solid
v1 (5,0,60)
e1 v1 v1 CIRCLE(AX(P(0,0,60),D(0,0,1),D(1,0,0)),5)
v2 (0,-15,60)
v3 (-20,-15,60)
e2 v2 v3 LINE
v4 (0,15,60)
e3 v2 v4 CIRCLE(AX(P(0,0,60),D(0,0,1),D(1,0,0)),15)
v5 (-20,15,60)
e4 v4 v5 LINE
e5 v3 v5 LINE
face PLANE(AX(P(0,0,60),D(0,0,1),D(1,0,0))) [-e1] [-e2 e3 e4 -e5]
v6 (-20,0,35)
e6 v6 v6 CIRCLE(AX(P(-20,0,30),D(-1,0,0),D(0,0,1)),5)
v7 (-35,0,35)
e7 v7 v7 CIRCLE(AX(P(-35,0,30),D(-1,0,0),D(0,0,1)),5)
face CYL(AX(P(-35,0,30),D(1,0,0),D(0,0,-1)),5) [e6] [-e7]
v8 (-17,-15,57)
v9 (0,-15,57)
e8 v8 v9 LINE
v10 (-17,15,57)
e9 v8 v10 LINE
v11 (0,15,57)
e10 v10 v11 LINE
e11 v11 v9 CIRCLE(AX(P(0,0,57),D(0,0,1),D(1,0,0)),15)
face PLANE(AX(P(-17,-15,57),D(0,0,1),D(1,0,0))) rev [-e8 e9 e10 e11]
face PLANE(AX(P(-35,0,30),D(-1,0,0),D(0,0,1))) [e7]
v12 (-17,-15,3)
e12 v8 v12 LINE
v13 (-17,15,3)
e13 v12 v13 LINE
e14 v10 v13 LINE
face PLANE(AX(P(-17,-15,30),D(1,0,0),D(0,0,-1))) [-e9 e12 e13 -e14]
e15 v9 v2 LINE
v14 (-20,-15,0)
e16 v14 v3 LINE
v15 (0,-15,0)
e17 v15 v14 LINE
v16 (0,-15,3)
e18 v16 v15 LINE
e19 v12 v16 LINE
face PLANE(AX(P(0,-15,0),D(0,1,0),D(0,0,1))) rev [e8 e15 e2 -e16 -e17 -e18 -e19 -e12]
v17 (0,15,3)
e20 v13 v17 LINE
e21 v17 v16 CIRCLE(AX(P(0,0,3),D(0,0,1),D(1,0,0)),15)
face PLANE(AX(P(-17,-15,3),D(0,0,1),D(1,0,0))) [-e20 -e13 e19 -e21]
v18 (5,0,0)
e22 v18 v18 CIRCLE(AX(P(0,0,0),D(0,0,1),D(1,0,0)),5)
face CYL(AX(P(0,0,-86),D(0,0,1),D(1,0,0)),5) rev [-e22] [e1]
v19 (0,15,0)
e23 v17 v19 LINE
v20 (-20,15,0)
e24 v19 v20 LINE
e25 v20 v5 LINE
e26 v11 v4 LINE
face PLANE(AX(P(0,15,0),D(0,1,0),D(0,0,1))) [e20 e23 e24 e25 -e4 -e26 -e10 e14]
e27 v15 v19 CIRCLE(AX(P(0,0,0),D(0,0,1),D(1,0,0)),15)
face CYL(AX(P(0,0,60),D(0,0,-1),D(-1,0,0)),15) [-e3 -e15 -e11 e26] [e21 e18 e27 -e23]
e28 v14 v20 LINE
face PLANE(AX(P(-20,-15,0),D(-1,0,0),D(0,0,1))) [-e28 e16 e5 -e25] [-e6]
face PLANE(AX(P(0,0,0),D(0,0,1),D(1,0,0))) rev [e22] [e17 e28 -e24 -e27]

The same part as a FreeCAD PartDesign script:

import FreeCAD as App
import Part
import Sketcher
from FreeCAD import Vector

doc = App.newDocument("Part")
body = doc.addObject("PartDesign::Body", "Body")

sketch1 = body.newObject("Sketcher::SketchObject", "Sketch")
sketch1.AttachmentSupport = (doc.getObject("XY_Plane"), [""])
sketch1.MapMode = "FlatFace"
sketch1.addGeometry(Part.Circle(Vector(0, 0, 0), Vector(0, 0, 1), 15), False)
sketch1.addConstraint([
    Sketcher.Constraint("Coincident", 0, 3, -1, 1),
    Sketcher.Constraint("Diameter", 0, 30.0),
])
pad1 = body.newObject("PartDesign::Pad", "Pad")
pad1.Profile = sketch1
pad1.Length = 60

sketch2 = body.newObject("Sketcher::SketchObject", "Sketch001")
sketch2.AttachmentSupport = (doc.getObject("XZ_Plane"), [""])
sketch2.MapMode = "FlatFace"
sketch2.addGeometry([
    Part.LineSegment(Vector(0, 0, 0), Vector(-20, 0, 0)),
    Part.LineSegment(Vector(-20, 0, 0), Vector(-20, 30, 0)),
    Part.LineSegment(Vector(-20, 30, 0), Vector(-17, 30, 0)),
    Part.LineSegment(Vector(-17, 30, 0), Vector(-17, 3, 0)),
    Part.LineSegment(Vector(-17, 3, 0), Vector(0, 3, 0)),
    Part.LineSegment(Vector(0, 3, 0), Vector(0, 0, 0)),
], False)
sketch2.addConstraint([
    Sketcher.Constraint("Coincident", 0, 2, 1, 1),
    Sketcher.Constraint("Coincident", 1, 2, 2, 1),
    Sketcher.Constraint("Coincident", 2, 2, 3, 1),
    Sketcher.Constraint("Coincident", 3, 2, 4, 1),
    Sketcher.Constraint("Coincident", 4, 2, 5, 1),
    Sketcher.Constraint("Coincident", 5, 2, 0, 1),
    Sketcher.Constraint("Horizontal", 0),
    Sketcher.Constraint("Vertical", 1),
    Sketcher.Constraint("Horizontal", 2),
    Sketcher.Constraint("Vertical", 3),
    Sketcher.Constraint("Horizontal", 4),
    Sketcher.Constraint("Vertical", 5),
    Sketcher.Constraint("Coincident", 5, 2, -1, 1),
    Sketcher.Constraint("Equal", 2, 5),
    Sketcher.Constraint("DistanceX", 0, 2, 0, 1, 20.0),
    Sketcher.Constraint("DistanceX", 2, 1, 2, 2, 3.0),
    Sketcher.Constraint("DistanceY", 1, 1, 1, 2, 30.0),
])
pad2 = body.newObject("PartDesign::Pad", "Pad001")
pad2.Profile = sketch2
pad2.Length = 30
pad2.Midplane = True
doc.recompute()

datumplane = body.newObject("PartDesign::Plane", "DatumPlane")
datumplane.AttachmentSupport = (doc.getObject("XY_Plane"), [""])
datumplane.MapMode = "FlatFace"
datumplane.AttachmentOffset = App.Placement(Vector(0, 0, 30), App.Rotation())
mirrored = body.newObject("PartDesign::Mirrored", "Mirrored")
mirrored.Originals = [pad2]
mirrored.MirrorPlane = (datumplane, [""])
body.Tip = mirrored

sketch3 = body.newObject("Sketcher::SketchObject", "Sketch002")
sketch3.AttachmentSupport = (doc.getObject("YZ_Plane"), [""])
sketch3.MapMode = "FlatFace"
sketch3.AttachmentOffset = App.Placement(Vector(0, 0, -20), App.Rotation())
sketch3.addGeometry(Part.Circle(Vector(0, 30, 0), Vector(0, 0, 1), 5), False)
sketch3.addConstraint([
    Sketcher.Constraint("PointOnObject", 0, 3, -2),
    Sketcher.Constraint("Diameter", 0, 10.0),
    Sketcher.Constraint("DistanceY", -1, 1, 0, 3, 30.0),
])
pad3 = body.newObject("PartDesign::Pad", "Pad002")
pad3.Profile = sketch3
pad3.Length = 15
pad3.Reversed = True

sketch4 = body.newObject("Sketcher::SketchObject", "Sketch003")
sketch4.AttachmentSupport = (doc.getObject("XY_Plane"), [""])
sketch4.MapMode = "FlatFace"
sketch4.AttachmentOffset = App.Placement(Vector(0, 0, 60), App.Rotation())
sketch4.addGeometry(Part.Circle(Vector(0, 0, 0), Vector(0, 0, 1), 5), False)
sketch4.addConstraint([
    Sketcher.Constraint("Coincident", 0, 3, -1, 1),
    Sketcher.Constraint("Diameter", 0, 10.0),
])
pocket1 = body.newObject("PartDesign::Pocket", "Pocket")
pocket1.Profile = sketch4
pocket1.Length = 146

doc.recompute()
